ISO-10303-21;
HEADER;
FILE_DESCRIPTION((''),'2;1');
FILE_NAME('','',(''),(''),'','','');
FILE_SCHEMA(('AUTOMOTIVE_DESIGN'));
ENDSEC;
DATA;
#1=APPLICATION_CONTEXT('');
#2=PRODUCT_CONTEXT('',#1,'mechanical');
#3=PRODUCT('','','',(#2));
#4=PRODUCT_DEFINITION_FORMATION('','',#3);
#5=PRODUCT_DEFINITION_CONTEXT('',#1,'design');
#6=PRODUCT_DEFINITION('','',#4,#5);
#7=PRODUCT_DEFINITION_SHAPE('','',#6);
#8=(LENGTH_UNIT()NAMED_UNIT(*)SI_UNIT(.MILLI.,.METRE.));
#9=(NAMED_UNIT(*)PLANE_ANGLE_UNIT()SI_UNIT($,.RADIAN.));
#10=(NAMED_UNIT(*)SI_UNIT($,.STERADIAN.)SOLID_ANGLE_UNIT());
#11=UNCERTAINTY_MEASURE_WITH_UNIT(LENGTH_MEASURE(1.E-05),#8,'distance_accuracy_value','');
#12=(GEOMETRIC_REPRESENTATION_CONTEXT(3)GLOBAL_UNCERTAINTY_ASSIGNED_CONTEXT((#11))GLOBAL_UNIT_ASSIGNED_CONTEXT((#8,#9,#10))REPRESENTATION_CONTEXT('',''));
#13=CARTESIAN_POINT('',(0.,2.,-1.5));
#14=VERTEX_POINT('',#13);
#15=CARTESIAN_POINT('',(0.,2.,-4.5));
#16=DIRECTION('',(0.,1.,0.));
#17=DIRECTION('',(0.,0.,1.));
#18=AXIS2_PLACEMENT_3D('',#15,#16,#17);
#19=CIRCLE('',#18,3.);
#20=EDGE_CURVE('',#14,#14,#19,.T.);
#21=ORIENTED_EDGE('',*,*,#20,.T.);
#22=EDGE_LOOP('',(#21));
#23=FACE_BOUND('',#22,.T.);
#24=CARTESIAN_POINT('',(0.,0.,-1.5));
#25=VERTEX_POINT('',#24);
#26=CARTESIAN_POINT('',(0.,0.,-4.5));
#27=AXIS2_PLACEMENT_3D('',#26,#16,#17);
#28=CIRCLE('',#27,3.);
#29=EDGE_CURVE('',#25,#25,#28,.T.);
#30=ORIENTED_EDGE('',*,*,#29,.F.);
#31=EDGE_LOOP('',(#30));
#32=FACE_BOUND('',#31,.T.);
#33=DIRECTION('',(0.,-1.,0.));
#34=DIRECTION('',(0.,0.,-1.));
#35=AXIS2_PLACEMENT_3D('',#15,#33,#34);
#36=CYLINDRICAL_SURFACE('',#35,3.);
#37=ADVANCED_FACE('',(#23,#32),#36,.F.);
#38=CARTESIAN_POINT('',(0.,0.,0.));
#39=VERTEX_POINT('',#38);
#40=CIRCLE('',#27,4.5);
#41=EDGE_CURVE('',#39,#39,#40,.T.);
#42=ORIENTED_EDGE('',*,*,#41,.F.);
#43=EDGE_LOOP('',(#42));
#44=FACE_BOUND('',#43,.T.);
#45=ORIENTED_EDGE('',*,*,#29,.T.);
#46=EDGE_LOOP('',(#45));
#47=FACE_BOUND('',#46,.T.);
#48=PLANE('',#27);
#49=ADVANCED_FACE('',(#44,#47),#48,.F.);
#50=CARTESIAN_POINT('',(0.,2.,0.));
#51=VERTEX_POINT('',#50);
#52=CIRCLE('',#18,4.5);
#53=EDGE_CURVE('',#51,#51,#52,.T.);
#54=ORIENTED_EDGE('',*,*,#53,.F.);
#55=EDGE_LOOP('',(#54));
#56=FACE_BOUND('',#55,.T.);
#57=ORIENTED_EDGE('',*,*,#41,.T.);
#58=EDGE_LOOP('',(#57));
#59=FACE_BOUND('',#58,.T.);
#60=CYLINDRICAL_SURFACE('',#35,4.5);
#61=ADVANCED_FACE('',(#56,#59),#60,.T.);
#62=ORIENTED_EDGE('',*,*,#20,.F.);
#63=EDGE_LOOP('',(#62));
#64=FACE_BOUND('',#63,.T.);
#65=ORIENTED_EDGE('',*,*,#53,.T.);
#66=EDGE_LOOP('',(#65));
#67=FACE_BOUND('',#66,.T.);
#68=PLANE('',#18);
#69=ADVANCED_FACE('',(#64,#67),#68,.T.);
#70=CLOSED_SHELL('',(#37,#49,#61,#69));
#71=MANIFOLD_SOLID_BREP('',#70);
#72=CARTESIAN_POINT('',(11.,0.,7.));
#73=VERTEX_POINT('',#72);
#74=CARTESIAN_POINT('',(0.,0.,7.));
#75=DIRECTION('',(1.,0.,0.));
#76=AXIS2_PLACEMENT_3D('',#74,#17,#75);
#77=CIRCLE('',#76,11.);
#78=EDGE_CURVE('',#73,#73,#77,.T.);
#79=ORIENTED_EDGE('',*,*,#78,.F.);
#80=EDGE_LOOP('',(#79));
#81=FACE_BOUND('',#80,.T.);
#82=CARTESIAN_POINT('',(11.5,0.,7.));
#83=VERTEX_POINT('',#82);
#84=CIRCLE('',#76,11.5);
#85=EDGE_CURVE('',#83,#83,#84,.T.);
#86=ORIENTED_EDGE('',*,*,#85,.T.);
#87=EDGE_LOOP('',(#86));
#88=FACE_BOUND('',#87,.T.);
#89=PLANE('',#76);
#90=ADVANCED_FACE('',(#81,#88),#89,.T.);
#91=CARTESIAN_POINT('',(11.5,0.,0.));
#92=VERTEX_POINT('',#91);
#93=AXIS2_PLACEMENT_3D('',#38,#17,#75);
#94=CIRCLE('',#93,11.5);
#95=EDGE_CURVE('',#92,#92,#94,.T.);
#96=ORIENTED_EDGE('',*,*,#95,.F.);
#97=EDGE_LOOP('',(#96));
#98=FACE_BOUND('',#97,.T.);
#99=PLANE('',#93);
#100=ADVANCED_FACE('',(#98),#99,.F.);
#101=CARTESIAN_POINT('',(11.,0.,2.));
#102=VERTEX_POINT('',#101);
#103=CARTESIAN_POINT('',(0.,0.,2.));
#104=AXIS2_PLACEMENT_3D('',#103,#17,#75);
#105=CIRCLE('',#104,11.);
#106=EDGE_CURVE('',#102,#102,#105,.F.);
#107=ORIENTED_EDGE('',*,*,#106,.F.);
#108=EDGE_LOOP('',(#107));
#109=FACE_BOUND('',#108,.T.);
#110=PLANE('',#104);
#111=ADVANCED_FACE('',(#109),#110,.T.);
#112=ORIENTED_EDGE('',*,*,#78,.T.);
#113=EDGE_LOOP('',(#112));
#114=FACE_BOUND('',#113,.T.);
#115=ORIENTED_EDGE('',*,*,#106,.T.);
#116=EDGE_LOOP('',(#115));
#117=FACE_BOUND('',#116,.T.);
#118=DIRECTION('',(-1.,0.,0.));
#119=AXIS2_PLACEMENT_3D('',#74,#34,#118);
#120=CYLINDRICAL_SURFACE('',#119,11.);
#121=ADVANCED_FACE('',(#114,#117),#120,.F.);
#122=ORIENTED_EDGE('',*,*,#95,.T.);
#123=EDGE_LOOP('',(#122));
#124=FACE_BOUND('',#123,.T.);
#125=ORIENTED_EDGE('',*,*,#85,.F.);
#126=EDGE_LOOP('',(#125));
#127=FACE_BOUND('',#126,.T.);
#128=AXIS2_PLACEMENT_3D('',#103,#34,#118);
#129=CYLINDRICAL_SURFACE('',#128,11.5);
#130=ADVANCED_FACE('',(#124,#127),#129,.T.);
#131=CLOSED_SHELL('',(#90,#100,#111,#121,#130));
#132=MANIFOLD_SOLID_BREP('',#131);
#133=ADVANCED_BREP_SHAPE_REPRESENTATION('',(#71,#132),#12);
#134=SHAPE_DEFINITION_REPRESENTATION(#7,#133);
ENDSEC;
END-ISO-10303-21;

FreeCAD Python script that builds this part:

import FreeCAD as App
import Part
import Sketcher
Q = App.Units.Quantity

doc = App.newDocument("Part")
body = doc.addObject("PartDesign::Body", "Body")

# Sketch on XY plane
sketch1 = body.newObject("Sketcher::SketchObject", "Sketch")
sketch1.AttachmentSupport = (doc.getObject("XY_Plane"), [""])
sketch1.MapMode = "FlatFace"
sketch1.addGeometry(Part.Circle(App.Vector(0, 0, 0), App.Vector(0, 0, 1), 12), False)
sketch1.addConstraint(Sketcher.Constraint("Coincident", 0, 3, -1, 1))
sketch1.addConstraint(Sketcher.Constraint("Diameter", 0, Q("23 mm")))
pad1 = body.newObject("PartDesign::Pad", "Pad")
pad1.Profile = sketch1
pad1.Length = 2

# Sketch on XY plane
sketch2 = body.newObject("Sketcher::SketchObject", "Sketch001")
sketch2.AttachmentSupport = (doc.getObject("XY_Plane"), [""])
sketch2.MapMode = "FlatFace"
sketch2.AttachmentOffset = App.Placement(App.Vector(0, 0, 2), App.Rotation())
sketch2.addGeometry(Part.Circle(App.Vector(0, 0, 0), App.Vector(0, 0, 1), 12), False)
sketch2.addGeometry(Part.Circle(App.Vector(0, 0, 0), App.Vector(0, 0, 1), 11), False)
sketch2.addConstraint(Sketcher.Constraint("Coincident", 0, 3, -1, 1))
sketch2.addConstraint(Sketcher.Constraint("Coincident", 1, 3, -1, 1))
sketch2.addConstraint(Sketcher.Constraint("Diameter", 0, Q("23 mm")))
sketch2.addConstraint(Sketcher.Constraint("Diameter", 1, Q("22 mm")))
pad2 = body.newObject("PartDesign::Pad", "Pad001")
pad2.Profile = sketch2
pad2.Length = 5
body2 = doc.addObject("PartDesign::Body", "Body001")

# Sketch on XZ plane
sketch3 = body2.newObject("Sketcher::SketchObject", "Sketch002")
sketch3.AttachmentSupport = (doc.getObject("XZ_Plane001"), [""])
sketch3.MapMode = "FlatFace"
sketch3.addGeometry(Part.Circle(App.Vector(0, -4.5, 0), App.Vector(0, 0, 1), 4.5), False)
sketch3.addGeometry(Part.Circle(App.Vector(0, -4.5, 0), App.Vector(0, 0, 1), 3), False)
sketch3.addConstraint(Sketcher.Constraint("Coincident", 1, 3, 0, 3))
sketch3.addConstraint(Sketcher.Constraint("PointOnObject", 0, 3, -2))
sketch3.addConstraint(Sketcher.Constraint("Diameter", 0, Q("9 mm")))
sketch3.addConstraint(Sketcher.Constraint("Diameter", 1, Q("6 mm")))
sketch3.addConstraint(Sketcher.Constraint("DistanceY", 0, 3, -1, 1, Q("4.5 mm")))
pad3 = body2.newObject("PartDesign::Pad", "Pad002")
pad3.Profile = sketch3
pad3.Length = 2
pad3.Reversed = True

doc.recompute()
